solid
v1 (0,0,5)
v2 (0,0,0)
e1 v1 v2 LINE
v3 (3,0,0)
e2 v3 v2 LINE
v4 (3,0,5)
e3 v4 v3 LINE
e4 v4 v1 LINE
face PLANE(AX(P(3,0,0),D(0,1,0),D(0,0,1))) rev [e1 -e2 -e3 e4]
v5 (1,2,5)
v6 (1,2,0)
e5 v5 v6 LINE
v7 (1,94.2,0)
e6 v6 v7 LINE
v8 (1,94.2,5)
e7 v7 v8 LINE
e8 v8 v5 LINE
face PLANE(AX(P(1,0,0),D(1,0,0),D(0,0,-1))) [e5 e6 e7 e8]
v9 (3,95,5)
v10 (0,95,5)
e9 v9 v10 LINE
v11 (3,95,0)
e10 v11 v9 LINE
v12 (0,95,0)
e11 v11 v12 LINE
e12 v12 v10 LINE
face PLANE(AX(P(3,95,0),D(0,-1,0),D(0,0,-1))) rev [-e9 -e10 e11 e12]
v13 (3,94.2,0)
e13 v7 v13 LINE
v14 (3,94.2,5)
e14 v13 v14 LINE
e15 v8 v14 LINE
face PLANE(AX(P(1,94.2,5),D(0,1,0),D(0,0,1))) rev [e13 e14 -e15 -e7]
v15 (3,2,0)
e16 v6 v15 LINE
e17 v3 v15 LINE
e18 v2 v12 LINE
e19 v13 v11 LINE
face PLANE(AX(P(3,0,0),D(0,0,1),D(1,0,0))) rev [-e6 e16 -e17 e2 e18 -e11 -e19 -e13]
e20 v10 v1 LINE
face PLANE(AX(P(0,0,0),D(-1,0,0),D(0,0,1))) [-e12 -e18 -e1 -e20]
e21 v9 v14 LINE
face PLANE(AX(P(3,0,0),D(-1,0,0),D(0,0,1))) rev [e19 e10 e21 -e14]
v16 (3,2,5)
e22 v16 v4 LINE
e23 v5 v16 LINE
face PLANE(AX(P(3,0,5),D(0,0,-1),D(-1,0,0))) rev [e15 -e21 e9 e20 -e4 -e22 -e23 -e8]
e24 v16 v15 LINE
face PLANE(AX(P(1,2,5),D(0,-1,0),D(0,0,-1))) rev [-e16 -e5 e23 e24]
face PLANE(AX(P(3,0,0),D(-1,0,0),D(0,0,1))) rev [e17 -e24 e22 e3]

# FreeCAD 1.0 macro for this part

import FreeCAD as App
import Part
import Sketcher
from FreeCAD import Vector
Q = App.Units.Quantity

doc = App.newDocument("Part")
body = doc.addObject("PartDesign::Body", "Body")

sketch1 = body.newObject("Sketcher::SketchObject", "Sketch")
sketch1.AttachmentSupport = (doc.getObject("YZ_Plane"), [""])
sketch1.MapMode = "FlatFace"
sketch1.addGeometry(Part.LineSegment(Vector(0, 5, 0), Vector(0, 0, 0)), False)
sketch1.addGeometry(Part.LineSegment(Vector(0, 0, 0), Vector(95, 0, 0)), False)
sketch1.addGeometry(Part.LineSegment(Vector(95, 0, 0), Vector(95, 5, 0)), False)
sketch1.addGeometry(Part.LineSegment(Vector(95, 5, 0), Vector(0, 5, 0)), False)
sketch1.addConstraint(Sketcher.Constraint("Coincident", 0, 2, 1, 1))
sketch1.addConstraint(Sketcher.Constraint("Coincident", 1, 2, 2, 1))
sketch1.addConstraint(Sketcher.Constraint("Coincident", 2, 2, 3, 1))
sketch1.addConstraint(Sketcher.Constraint("Coincident", 3, 2, 0, 1))
sketch1.addConstraint(Sketcher.Constraint("Vertical", 0))
sketch1.addConstraint(Sketcher.Constraint("Horizontal", 1))
sketch1.addConstraint(Sketcher.Constraint("Vertical", 2))
sketch1.addConstraint(Sketcher.Constraint("Horizontal", 3))
sketch1.addConstraint(Sketcher.Constraint("Coincident", 0, 2, -1, 1))
sketch1.addConstraint(Sketcher.Constraint("DistanceX", 1, 1, 1, 2, Q("95 mm")))
sketch1.addConstraint(Sketcher.Constraint("DistanceY", 0, 2, 0, 1, Q("5 mm")))
pad1 = body.newObject("PartDesign::Pad", "Pad")
pad1.Profile = sketch1
pad1.Length = 3

sketch2 = body.newObject("Sketcher::SketchObject", "Sketch001")
sketch2.AttachmentSupport = (doc.getObject("YZ_Plane"), [""])
sketch2.MapMode = "FlatFace"
sketch2.AttachmentOffset = App.Placement(Vector(0, 0, 3), App.Rotation())
sketch2.addGeometry(Part.LineSegment(Vector(2, 5, 0), Vector(2, 0, 0)), False)
sketch2.addGeometry(Part.LineSegment(Vector(2, 0, 0), Vector(94, 0, 0)), False)
sketch2.addGeometry(Part.LineSegment(Vector(94, 0, 0), Vector(94, 5, 0)), False)
sketch2.addGeometry(Part.LineSegment(Vector(94, 5, 0), Vector(2, 5, 0)), False)
sketch2.addConstraint(Sketcher.Constraint("Coincident", 0, 2, 1, 1))
sketch2.addConstraint(Sketcher.Constraint("Coincident", 1, 2, 2, 1))
sketch2.addConstraint(Sketcher.Constraint("Coincident", 2, 2, 3, 1))
sketch2.addConstraint(Sketcher.Constraint("Coincident", 3, 2, 0, 1))
sketch2.addConstraint(Sketcher.Constraint("Vertical", 0))
sketch2.addConstraint(Sketcher.Constraint("Horizontal", 1))
sketch2.addConstraint(Sketcher.Constraint("Vertical", 2))
sketch2.addConstraint(Sketcher.Constraint("Horizontal", 3))
sketch2.addConstraint(Sketcher.Constraint("PointOnObject", 0, 2, -1))
sketch2.addConstraint(Sketcher.Constraint("DistanceY", 0, 2, 0, 1, Q("5 mm")))
sketch2.addConstraint(Sketcher.Constraint("DistanceX", 1, 1, 1, 2, Q("92.2 mm")))
sketch2.addConstraint(Sketcher.Constraint("DistanceX", -1, 1, 0, 2, Q("2 mm")))
pocket1 = body.newObject("PartDesign::Pocket", "Pocket")
pocket1.Profile = sketch2
pocket1.Length = 2

doc.recompute()
